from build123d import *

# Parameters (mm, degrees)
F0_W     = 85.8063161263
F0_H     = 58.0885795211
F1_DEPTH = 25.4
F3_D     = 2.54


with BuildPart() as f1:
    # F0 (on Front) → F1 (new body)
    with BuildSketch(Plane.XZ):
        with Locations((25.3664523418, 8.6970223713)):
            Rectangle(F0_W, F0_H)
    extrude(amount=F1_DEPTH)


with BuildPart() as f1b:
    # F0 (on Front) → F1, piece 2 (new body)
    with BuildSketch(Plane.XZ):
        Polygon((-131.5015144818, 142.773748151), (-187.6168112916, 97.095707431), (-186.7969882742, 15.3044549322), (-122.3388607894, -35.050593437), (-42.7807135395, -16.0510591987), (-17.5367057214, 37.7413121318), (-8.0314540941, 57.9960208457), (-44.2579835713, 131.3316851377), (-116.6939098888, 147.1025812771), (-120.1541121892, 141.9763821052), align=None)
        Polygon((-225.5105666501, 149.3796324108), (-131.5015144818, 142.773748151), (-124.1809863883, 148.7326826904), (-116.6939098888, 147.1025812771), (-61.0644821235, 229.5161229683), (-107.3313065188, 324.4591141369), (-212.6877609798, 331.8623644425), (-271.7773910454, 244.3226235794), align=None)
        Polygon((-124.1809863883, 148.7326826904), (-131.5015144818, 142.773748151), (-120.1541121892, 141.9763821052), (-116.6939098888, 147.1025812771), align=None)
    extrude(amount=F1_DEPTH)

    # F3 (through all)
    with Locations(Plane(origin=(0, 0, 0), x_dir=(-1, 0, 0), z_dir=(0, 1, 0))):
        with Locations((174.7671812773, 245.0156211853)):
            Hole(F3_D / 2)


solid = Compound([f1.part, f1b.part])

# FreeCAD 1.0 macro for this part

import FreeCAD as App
import Part
import Sketcher

V = App.Vector
Q = App.Units.Quantity

doc = App.newDocument("Part")
params = doc.addObject("Spreadsheet::Sheet", "Params")
for row, (alias, value) in enumerate([
    ("pad1_length", "1 in"),
    ("pad2_length", "1 in"),
    ("sketch3_diameter", "0.1 in"),
    ("hole_diameter", "0.1 in"),
], start=1):
    params.set(f"A{row}", alias)
    params.set(f"B{row}", "=" + value)
    params.setAlias(f"B{row}", alias)

body = doc.addObject("PartDesign::Body", "Body")

# Sketch on XZ plane
sketch1 = doc.addObject("Sketcher::SketchObject", "Sketch")
body.addObject(sketch1)
sketch1.AttachmentSupport = (doc.XZ_Plane, [""])
sketch1.MapMode = "FlatFace"
sketch1.addGeometry([
    Part.LineSegment(V(-18, 38, 0), V(-18, -20, 0)),
    Part.LineSegment(V(-18, -20, 0), V(68, -20, 0)),
    Part.LineSegment(V(68, -20, 0), V(68, 38, 0)),
    Part.LineSegment(V(68, 38, 0), V(-18, 38, 0)),
], False)
sketch1.addConstraint([
    Sketcher.Constraint("Coincident", 0, 2, 1, 1),
    Sketcher.Constraint("Coincident", 1, 2, 2, 1),
    Sketcher.Constraint("Coincident", 2, 2, 3, 1),
    Sketcher.Constraint("Coincident", 3, 2, 0, 1),
    Sketcher.Constraint("Vertical", 0),
    Sketcher.Constraint("Horizontal", 1),
    Sketcher.Constraint("Vertical", 2),
    Sketcher.Constraint("Horizontal", 3),
    Sketcher.Constraint("DistanceY", 0, 2, 0, 1, Q("58.08858 mm")),
    Sketcher.Constraint("DistanceX", 1, 1, 1, 2, Q("85.806316 mm")),
    Sketcher.Constraint("DistanceX", -1, 1, 1, 2, Q("68.26961 mm")),
    Sketcher.Constraint("DistanceY", 0, 2, -1, 1, Q("20.347267 mm")),
])
pad1 = doc.addObject("PartDesign::Pad", "Pad")
body.addObject(pad1)
pad1.Profile = sketch1
pad1.setExpression("Length", "Params.pad1_length")
body2 = doc.addObject("PartDesign::Body", "Body001")

# Sketch on XZ plane
sketch2 = doc.addObject("Sketcher::SketchObject", "Sketch001")
body2.addObject(sketch2)
sketch2.AttachmentSupport = (doc.getObject("XZ_Plane001"), [""])
sketch2.MapMode = "FlatFace"
sketch2.addGeometry([
    Part.LineSegment(V(-132, 143, 0), V(-188, 97, 0)),  # 0
    Part.LineSegment(V(-188, 97, 0), V(-187, 15, 0)),  # 1
    Part.LineSegment(V(-187, 15, 0), V(-122, -35, 0)),  # 2
    Part.LineSegment(V(-122, -35, 0), V(-43, -16, 0)),  # 3
    Part.LineSegment(V(-43, -16, 0), V(-18, 38, 0)),  # 4
    Part.LineSegment(V(-18, 38, 0), V(-8, 58, 0)),  # 5
    Part.LineSegment(V(-8, 58, 0), V(-44, 131, 0)),  # 6
    Part.LineSegment(V(-44, 131, 0), V(-117, 147, 0)),  # 7
    Part.LineSegment(V(-117, 147, 0), V(-61, 230, 0)),  # 8
    Part.LineSegment(V(-61, 230, 0), V(-107, 324, 0)),  # 9
    Part.LineSegment(V(-107, 324, 0), V(-213, 332, 0)),  # 10
    Part.LineSegment(V(-213, 332, 0), V(-272, 244, 0)),  # 11
    Part.LineSegment(V(-272, 244, 0), V(-226, 149, 0)),  # 12
    Part.LineSegment(V(-226, 149, 0), V(-132, 143, 0)),  # 13
], False)
sketch2.addConstraint([
    Sketcher.Constraint("Coincident", 0, 2, 1, 1),
    Sketcher.Constraint("Coincident", 1, 2, 2, 1),
    Sketcher.Constraint("Coincident", 2, 2, 3, 1),
    Sketcher.Constraint("Coincident", 3, 2, 4, 1),
    Sketcher.Constraint("Coincident", 4, 2, 5, 1),
    Sketcher.Constraint("Coincident", 5, 2, 6, 1),
    Sketcher.Constraint("Coincident", 6, 2, 7, 1),
    Sketcher.Constraint("Coincident", 7, 2, 8, 1),
    Sketcher.Constraint("Coincident", 8, 2, 9, 1),
    Sketcher.Constraint("Coincident", 9, 2, 10, 1),
    Sketcher.Constraint("Coincident", 10, 2, 11, 1),
    Sketcher.Constraint("Coincident", 11, 2, 12, 1),
    Sketcher.Constraint("Coincident", 12, 2, 13, 1),
    Sketcher.Constraint("Coincident", 13, 2, 0, 1),
    Sketcher.Constraint("Parallel", 4, 5),
    Sketcher.Constraint("Parallel", 8, 11),
    Sketcher.Constraint("Parallel", 9, 12),
    Sketcher.Constraint("Parallel", 10, 13),
    Sketcher.Constraint("Equal", 1, 2),
    Sketcher.Constraint("Equal", 2, 3),
    Sketcher.Constraint("Equal", 3, 6),
    Sketcher.Constraint("Equal", 9, 10),
    Sketcher.Constraint("Equal", 10, 11),
    Sketcher.Constraint("Equal", 11, 12),
    Sketcher.Constraint("Angle", 4, Q("64.859991 deg")),
    Sketcher.Constraint("Distance", 4, Q("59.421201 mm")),
    Sketcher.Constraint("DistanceY", 2, 2, 0, 2, Q("132.146301 mm")),
    Sketcher.Constraint("DistanceX", 0, 2, 7, 2, Q("70.922901 mm")),
    Sketcher.Constraint("DistanceX", 8, 2, 6, 2, Q("16.806499 mm")),
    Sketcher.Constraint("DistanceY", 8, 2, 11, 2, Q("14.806501 mm")),
    Sketcher.Constraint("Distance", 1, Q("81.795361 mm")),
    Sketcher.Constraint("Distance", 5, Q("22.37416 mm")),
    Sketcher.Constraint("Distance", 8, Q("99.43151 mm")),
    Sketcher.Constraint("Distance", 13, Q("94.240859 mm")),
    Sketcher.Constraint("DistanceX", 0, 2, -1, 1, Q("187.616811 mm")),
    Sketcher.Constraint("DistanceX", 1, 2, -1, 1, Q("186.796988 mm")),
    Sketcher.Constraint("DistanceY", 3, 2, -1, 1, Q("16.051059 mm")),
    Sketcher.Constraint("DistanceY", -1, 1, 7, 2, Q("147.102581 mm")),
    Sketcher.Constraint("DistanceX", 10, 2, -1, 1, Q("212.687761 mm")),
    Sketcher.Constraint("DistanceX", 11, 2, -1, 1, Q("271.777391 mm")),
    Sketcher.Constraint("DistanceY", -1, 1, 13, 2, Q("142.773748 mm")),
    Sketcher.Constraint("DistanceX", 6, 2, 5, 2, Q("36.226529 mm")),
])
pad2 = doc.addObject("PartDesign::Pad", "Pad001")
body2.addObject(pad2)
pad2.Profile = sketch2
pad2.setExpression("Length", "Params.pad2_length")

# Sketch on XZ plane
sketch3 = doc.addObject("Sketcher::SketchObject", "Sketch002")
body2.addObject(sketch3)
sketch3.AttachmentSupport = (doc.getObject("XZ_Plane001"), [""])
sketch3.MapMode = "FlatFace"
sketch3.addGeometry(Part.Circle(V(-174.8, 245, 0), V(0, 0, 1), 1.3), False)
sketch3.addConstraint([
    Sketcher.Constraint("Diameter", 0, Q("0.1 in")),
    Sketcher.Constraint("DistanceX", 0, 3, -1, 1, Q("174.767181 mm")),
    Sketcher.Constraint("DistanceY", -1, 1, 0, 3, Q("245.015621 mm")),
])
sketch3.setExpression("Constraints[0]", "Params.sketch3_diameter")
doc.recompute()
hole = doc.addObject("PartDesign::Hole", "Hole")
body2.addObject(hole)
hole.Profile = sketch3
hole.ThreadType = "None"
hole.setExpression("Diameter", "Params.hole_diameter")
hole.DepthType = "ThroughAll"
hole.Reversed = True

doc.recompute()
